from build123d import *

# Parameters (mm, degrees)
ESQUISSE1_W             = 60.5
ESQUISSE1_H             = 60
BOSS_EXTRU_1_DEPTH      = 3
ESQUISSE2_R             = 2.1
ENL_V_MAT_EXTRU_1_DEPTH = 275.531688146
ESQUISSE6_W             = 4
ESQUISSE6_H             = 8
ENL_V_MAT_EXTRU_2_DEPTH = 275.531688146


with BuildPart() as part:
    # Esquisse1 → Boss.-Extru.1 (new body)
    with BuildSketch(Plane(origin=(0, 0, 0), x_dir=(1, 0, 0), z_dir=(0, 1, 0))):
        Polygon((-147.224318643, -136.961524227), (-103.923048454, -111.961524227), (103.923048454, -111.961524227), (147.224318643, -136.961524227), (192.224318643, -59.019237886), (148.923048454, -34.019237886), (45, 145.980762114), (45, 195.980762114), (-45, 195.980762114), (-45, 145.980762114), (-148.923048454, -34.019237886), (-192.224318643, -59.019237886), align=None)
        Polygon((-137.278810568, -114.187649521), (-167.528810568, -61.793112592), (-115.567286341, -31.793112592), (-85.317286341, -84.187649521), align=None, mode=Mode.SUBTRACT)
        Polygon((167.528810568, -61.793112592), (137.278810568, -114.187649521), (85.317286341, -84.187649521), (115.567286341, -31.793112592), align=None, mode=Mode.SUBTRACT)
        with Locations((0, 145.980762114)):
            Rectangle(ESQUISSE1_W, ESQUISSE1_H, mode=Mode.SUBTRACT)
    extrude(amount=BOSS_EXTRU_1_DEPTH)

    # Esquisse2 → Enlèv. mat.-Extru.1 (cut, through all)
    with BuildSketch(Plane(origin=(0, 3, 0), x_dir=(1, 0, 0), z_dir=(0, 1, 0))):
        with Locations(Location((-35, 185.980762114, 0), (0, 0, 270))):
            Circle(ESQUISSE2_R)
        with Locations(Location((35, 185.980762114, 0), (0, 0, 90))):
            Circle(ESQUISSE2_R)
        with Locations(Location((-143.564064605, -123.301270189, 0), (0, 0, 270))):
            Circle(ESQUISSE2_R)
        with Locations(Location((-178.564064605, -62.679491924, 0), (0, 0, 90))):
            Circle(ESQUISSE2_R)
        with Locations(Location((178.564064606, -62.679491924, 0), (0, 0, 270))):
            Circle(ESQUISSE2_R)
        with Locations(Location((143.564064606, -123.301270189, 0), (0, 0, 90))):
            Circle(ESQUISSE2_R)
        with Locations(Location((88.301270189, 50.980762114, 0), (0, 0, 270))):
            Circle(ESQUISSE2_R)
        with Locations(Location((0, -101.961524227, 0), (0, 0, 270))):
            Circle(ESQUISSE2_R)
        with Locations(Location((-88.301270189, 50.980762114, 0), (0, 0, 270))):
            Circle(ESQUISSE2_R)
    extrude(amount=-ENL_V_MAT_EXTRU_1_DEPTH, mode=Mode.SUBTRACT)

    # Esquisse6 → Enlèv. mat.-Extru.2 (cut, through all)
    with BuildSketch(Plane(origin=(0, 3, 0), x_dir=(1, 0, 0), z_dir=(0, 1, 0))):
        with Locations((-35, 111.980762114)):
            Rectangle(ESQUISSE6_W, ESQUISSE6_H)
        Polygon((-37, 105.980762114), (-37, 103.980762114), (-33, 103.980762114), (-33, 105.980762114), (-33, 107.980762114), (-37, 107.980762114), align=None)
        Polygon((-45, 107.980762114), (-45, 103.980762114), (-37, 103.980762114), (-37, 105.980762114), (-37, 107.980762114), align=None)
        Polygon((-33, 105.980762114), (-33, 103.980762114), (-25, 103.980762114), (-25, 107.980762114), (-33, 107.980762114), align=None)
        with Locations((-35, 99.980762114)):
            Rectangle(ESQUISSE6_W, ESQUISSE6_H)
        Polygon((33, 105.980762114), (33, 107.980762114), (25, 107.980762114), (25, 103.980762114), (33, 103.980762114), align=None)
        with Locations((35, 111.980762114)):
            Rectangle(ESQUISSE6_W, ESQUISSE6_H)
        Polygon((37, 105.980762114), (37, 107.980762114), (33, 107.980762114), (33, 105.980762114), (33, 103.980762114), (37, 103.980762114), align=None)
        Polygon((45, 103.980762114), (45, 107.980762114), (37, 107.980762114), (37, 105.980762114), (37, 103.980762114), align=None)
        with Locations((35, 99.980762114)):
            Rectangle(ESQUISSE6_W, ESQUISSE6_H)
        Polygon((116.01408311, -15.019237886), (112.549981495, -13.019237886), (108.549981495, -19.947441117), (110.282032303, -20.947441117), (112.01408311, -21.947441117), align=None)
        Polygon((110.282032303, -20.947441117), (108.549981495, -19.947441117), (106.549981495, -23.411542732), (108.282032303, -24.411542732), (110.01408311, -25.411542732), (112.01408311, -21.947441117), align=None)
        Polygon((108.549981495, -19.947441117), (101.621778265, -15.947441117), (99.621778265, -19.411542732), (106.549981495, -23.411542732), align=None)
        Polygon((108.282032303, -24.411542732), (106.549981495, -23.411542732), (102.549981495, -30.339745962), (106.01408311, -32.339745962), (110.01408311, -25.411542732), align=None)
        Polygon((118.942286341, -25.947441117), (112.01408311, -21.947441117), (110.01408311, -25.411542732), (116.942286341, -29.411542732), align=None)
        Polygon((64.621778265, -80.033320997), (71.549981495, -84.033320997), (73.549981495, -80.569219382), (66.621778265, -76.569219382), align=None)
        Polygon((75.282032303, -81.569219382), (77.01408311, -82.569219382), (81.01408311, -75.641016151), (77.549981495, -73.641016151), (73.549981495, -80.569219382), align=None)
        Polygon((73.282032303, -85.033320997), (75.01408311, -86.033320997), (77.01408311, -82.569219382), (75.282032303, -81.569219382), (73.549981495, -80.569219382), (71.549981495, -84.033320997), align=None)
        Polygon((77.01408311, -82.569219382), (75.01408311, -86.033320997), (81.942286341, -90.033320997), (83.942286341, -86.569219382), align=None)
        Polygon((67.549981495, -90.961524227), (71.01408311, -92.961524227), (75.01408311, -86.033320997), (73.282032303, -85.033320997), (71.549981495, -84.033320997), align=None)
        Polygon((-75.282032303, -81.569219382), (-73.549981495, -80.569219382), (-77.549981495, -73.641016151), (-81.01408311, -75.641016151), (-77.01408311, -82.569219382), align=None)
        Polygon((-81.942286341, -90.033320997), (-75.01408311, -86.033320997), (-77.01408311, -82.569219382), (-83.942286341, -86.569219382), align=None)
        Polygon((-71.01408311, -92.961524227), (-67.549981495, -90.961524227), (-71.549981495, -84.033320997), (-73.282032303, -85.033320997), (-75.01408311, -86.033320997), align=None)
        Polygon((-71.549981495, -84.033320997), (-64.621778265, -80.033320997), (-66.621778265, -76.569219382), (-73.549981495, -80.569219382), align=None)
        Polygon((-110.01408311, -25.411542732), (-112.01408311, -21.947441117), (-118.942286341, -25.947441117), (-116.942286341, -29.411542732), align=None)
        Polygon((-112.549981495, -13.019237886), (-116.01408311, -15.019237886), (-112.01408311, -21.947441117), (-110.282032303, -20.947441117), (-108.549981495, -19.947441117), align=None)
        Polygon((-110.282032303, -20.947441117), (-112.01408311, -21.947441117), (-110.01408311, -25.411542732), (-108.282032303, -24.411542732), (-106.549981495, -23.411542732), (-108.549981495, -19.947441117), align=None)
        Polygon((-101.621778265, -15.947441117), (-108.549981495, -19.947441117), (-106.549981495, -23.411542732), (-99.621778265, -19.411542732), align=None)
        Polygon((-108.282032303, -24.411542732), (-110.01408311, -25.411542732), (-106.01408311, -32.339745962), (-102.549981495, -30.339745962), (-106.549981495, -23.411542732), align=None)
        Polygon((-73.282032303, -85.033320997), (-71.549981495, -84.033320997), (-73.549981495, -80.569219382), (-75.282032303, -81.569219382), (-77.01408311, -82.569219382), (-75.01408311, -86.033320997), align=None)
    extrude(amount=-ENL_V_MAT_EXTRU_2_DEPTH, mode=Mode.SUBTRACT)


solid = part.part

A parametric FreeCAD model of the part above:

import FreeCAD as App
import Part
import Sketcher
Q = App.Units.Quantity


def add_polygon(sketch, points):
    """Adds a closed chain of lines whose ends are joined by coincident constraints."""
    first, n = sketch.GeometryCount, len(points)
    for a, b in zip(points, points[1:] + points[:1]):
        sketch.addGeometry(Part.LineSegment(App.Vector(*a, 0), App.Vector(*b, 0)), False)
    for i in range(n):
        sketch.addConstraint(Sketcher.Constraint("Coincident", first + i, 2, first + (i + 1) % n, 1))

doc = App.newDocument("Part")
body = doc.addObject("PartDesign::Body", "Body")

sketch1 = body.newObject("Sketcher::SketchObject", "Sketch")
sketch1.AttachmentSupport = (doc.getObject("XZ_Plane"), [""])
sketch1.MapMode = "FlatFace"
add_polygon(sketch1, [(-147, 137), (-104, 112), (104, 112), (147, 137), (192, 59), (149, 34), (45, -146), (45, -196), (-45, -196), (-45, -146), (-149, 34), (-192, 59)])
add_polygon(sketch1, [(-85, 84), (-137, 114), (-168, 62), (-116, 32)])
add_polygon(sketch1, [(116, 32), (168, 62), (137, 114), (85, 84)])
add_polygon(sketch1, [(30, -116), (-30, -116), (-30, -176), (30, -176)])
sketch1.addConstraint(Sketcher.Constraint("Horizontal", 1))
sketch1.addConstraint(Sketcher.Constraint("Vertical", 6))
sketch1.addConstraint(Sketcher.Constraint("Horizontal", 7))
sketch1.addConstraint(Sketcher.Constraint("Vertical", 8))
sketch1.addConstraint(Sketcher.Constraint("Horizontal", 20))
sketch1.addConstraint(Sketcher.Constraint("Vertical", 21))
sketch1.addConstraint(Sketcher.Constraint("Horizontal", 22))
sketch1.addConstraint(Sketcher.Constraint("Vertical", 23))
sketch1.addConstraint(Sketcher.Constraint("Symmetric", 5, 2, 8, 2, -2))
sketch1.addConstraint(Sketcher.Constraint("Symmetric", 4, 2, 9, 2, -2))
sketch1.addConstraint(Sketcher.Constraint("Symmetric", 3, 2, 10, 2, -2))
sketch1.addConstraint(Sketcher.Constraint("Symmetric", 2, 2, 11, 2, -2))
sketch1.addConstraint(Sketcher.Constraint("Symmetric", 13, 2, 16, 2, -2))
sketch1.addConstraint(Sketcher.Constraint("Symmetric", 12, 2, 17, 2, -2))
sketch1.addConstraint(Sketcher.Constraint("Symmetric", 15, 2, 18, 2, -2))
sketch1.addConstraint(Sketcher.Constraint("Symmetric", 14, 2, 19, 2, -2))
sketch1.addConstraint(Sketcher.Constraint("Perpendicular", 2, 3))
sketch1.addConstraint(Sketcher.Constraint("Perpendicular", 3, 4))
sketch1.addConstraint(Sketcher.Constraint("Perpendicular", 0, 5))
sketch1.addConstraint(Sketcher.Constraint("Perpendicular", 4, 9))
sketch1.addConstraint(Sketcher.Constraint("Perpendicular", 11, 12))
sketch1.addConstraint(Sketcher.Constraint("Perpendicular", 12, 13))
sketch1.addConstraint(Sketcher.Constraint("Perpendicular", 13, 14))
sketch1.addConstraint(Sketcher.Constraint("Perpendicular", 14, 15))
sketch1.addConstraint(Sketcher.Constraint("Equal", 2, 4))
sketch1.addConstraint(Sketcher.Constraint("DistanceX", 7, 2, 7, 1, Q("90 mm")))
sketch1.addConstraint(Sketcher.Constraint("DistanceY", 6, 2, 6, 1, Q("50 mm")))
sketch1.addConstraint(Sketcher.Constraint("DistanceY", 21, 2, 21, 1, Q("60 mm")))
sketch1.addConstraint(Sketcher.Constraint("Angle", 0, Q("-30 deg")))
sketch1.addConstraint(Sketcher.Constraint("Distance", 0, Q("50 mm")))
sketch1.addConstraint(Sketcher.Constraint("Distance", 3, Q("90 mm")))
sketch1.addConstraint(Sketcher.Constraint("Distance", 12, Q("60 mm")))
sketch1.addConstraint(Sketcher.Constraint("DistanceX", 20, 2, 20, 1, Q("60.5 mm")))
sketch1.addConstraint(Sketcher.Constraint("DistanceY", 5, 2, 4, 2, Q("180 mm")))
sketch1.addConstraint(Sketcher.Constraint("DistanceY", 8, 2, 20, 2, Q("30 mm")))
sketch1.addConstraint(Sketcher.Constraint("Distance", 13, Q("60.5 mm")))
sketch1.addConstraint(Sketcher.Constraint("DistanceX", 20, 2, -1, 1, Q("30.25 mm")))
sketch1.addConstraint(Sketcher.Constraint("DistanceX", 12, 2, -1, 1, Q("137.278811 mm")))
sketch1.addConstraint(Sketcher.Constraint("DistanceY", -1, 1, 12, 2, Q("114.18765 mm")))
sketch1.addConstraint(Sketcher.Constraint("DistanceY", 10, 2, 12, 2, Q("55.168412 mm")))
pad1 = body.newObject("PartDesign::Pad", "Pad")
pad1.Profile = sketch1
pad1.Length = 3
pad1.Reversed = True

sketch2 = body.newObject("Sketcher::SketchObject", "Sketch001")
sketch2.AttachmentSupport = (doc.getObject("XZ_Plane"), [""])
sketch2.MapMode = "FlatFace"
sketch2.AttachmentOffset = App.Placement(App.Vector(0, 0, -3), App.Rotation())
sketch2.addGeometry(Part.Circle(App.Vector(-35, -186, 0), App.Vector(0, 0, 1), 2.1), False)
sketch2.addGeometry(Part.Circle(App.Vector(35, -186, 0), App.Vector(0, 0, 1), 2.1), False)
sketch2.addGeometry(Part.Circle(App.Vector(-143.6, 123.3, 0), App.Vector(0, 0, 1), 2.1), False)
sketch2.addGeometry(Part.Circle(App.Vector(-178.6, 62.7, 0), App.Vector(0, 0, 1), 2.1), False)
sketch2.addGeometry(Part.Circle(App.Vector(178.6, 62.7, 0), App.Vector(0, 0, 1), 2.1), False)
sketch2.addGeometry(Part.Circle(App.Vector(143.6, 123.3, 0), App.Vector(0, 0, 1), 2.1), False)
sketch2.addGeometry(Part.Circle(App.Vector(88.3, -51, 0), App.Vector(0, 0, 1), 2.1), False)
sketch2.addGeometry(Part.Circle(App.Vector(0, 102, 0), App.Vector(0, 0, 1), 2.1), False)
sketch2.addGeometry(Part.Circle(App.Vector(-88.3, -51, 0), App.Vector(0, 0, 1), 2.1), False)
sketch2.addConstraint(Sketcher.Constraint("Equal", 0, 1))
sketch2.addConstraint(Sketcher.Constraint("Equal", 1, 2))
sketch2.addConstraint(Sketcher.Constraint("Equal", 2, 3))
sketch2.addConstraint(Sketcher.Constraint("Equal", 3, 4))
sketch2.addConstraint(Sketcher.Constraint("Equal", 4, 5))
sketch2.addConstraint(Sketcher.Constraint("Equal", 5, 6))
sketch2.addConstraint(Sketcher.Constraint("Equal", 6, 7))
sketch2.addConstraint(Sketcher.Constraint("Equal", 7, 8))
sketch2.addConstraint(Sketcher.Constraint("Symmetric", 0, 3, 1, 3, -2))
sketch2.addConstraint(Sketcher.Constraint("Symmetric", 3, 3, 4, 3, -2))
sketch2.addConstraint(Sketcher.Constraint("Symmetric", 2, 3, 5, 3, -2))
sketch2.addConstraint(Sketcher.Constraint("Symmetric", 6, 3, 8, 3, -2))
sketch2.addConstraint(Sketcher.Constraint("PointOnObject", 7, 3, -2))
sketch2.addConstraint(Sketcher.Constraint("Diameter", 0, Q("4.2 mm")))
sketch2.addConstraint(Sketcher.Constraint("DistanceX", 0, 3, -1, 1, Q("35 mm")))
sketch2.addConstraint(Sketcher.Constraint("DistanceX", 3, 3, 2, 3, Q("35 mm")))
sketch2.addConstraint(Sketcher.Constraint("DistanceY", 1, 3, 6, 3, Q("135 mm")))
sketch2.addConstraint(Sketcher.Constraint("DistanceY", -1, 1, 2, 3, Q("123.30127 mm")))
sketch2.addConstraint(Sketcher.Constraint("DistanceY", -1, 1, 3, 3, Q("62.679492 mm")))
sketch2.addConstraint(Sketcher.Constraint("DistanceX", -1, 1, 6, 3, Q("88.30127 mm")))
sketch2.addConstraint(Sketcher.Constraint("DistanceX", 2, 3, 4, 3, Q("322.128129 mm")))
sketch2.addConstraint(Sketcher.Constraint("DistanceY", 0, 3, -1, 1, Q("185.980762 mm")))
sketch2.addConstraint(Sketcher.Constraint("DistanceY", -1, 1, 7, 3, Q("101.961524 mm")))
pocket1 = body.newObject("PartDesign::Pocket", "Pocket")
pocket1.Profile = sketch2
pocket1.Type = "ThroughAll"
pocket1.Reversed = True

sketch3 = body.newObject("Sketcher::SketchObject", "Sketch002")
sketch3.AttachmentSupport = (doc.getObject("XZ_Plane"), [""])
sketch3.MapMode = "FlatFace"
sketch3.AttachmentOffset = App.Placement(App.Vector(0, 0, -3), App.Rotation())
add_polygon(sketch3, [(-37, -116), (-37, -108), (-45, -108), (-45, -104), (-37, -104), (-37, -96), (-33, -96), (-33, -104), (-25, -104), (-25, -108), (-33, -108), (-33, -116)])
add_polygon(sketch3, [(33, -108), (25, -108), (25, -104), (33, -104), (33, -96), (37, -96), (37, -104), (45, -104), (45, -108), (37, -108), (37, -116), (33, -116)])
add_polygon(sketch3, [(116, 15), (112.5, 13), (108.5, 19.9), (101.6, 15.9), (99.6, 19.4), (106.5, 23.4), (102.5, 30.3), (106, 32.3), (110, 25.4), (116.9, 29.4), (118.9, 25.9), (112, 21.9)])
add_polygon(sketch3, [(64.6, 80), (71.5, 84), (67.5, 91), (71, 93), (75, 86), (81.9, 90), (83.9, 86.6), (77, 82.6), (81, 75.6), (77.5, 73.6), (73.5, 80.6), (66.6, 76.6)])
add_polygon(sketch3, [(-73.5, 80.6), (-77.5, 73.6), (-81, 75.6), (-77, 82.6), (-83.9, 86.6), (-81.9, 90), (-75, 86), (-71, 93), (-67.5, 91), (-71.5, 84), (-64.6, 80), (-66.6, 76.6)])
add_polygon(sketch3, [(-112, 21.9), (-118.9, 25.9), (-116.9, 29.4), (-110, 25.4), (-106, 32.3), (-102.5, 30.3), (-106.5, 23.4), (-99.6, 19.4), (-101.6, 15.9), (-108.5, 19.9), (-112.5, 13), (-116, 15)])
sketch3.addConstraint(Sketcher.Constraint("Vertical", 0))
sketch3.addConstraint(Sketcher.Constraint("Horizontal", 1))
sketch3.addConstraint(Sketcher.Constraint("Vertical", 2))
sketch3.addConstraint(Sketcher.Constraint("Horizontal", 3))
sketch3.addConstraint(Sketcher.Constraint("Vertical", 4))
sketch3.addConstraint(Sketcher.Constraint("Horizontal", 5))
sketch3.addConstraint(Sketcher.Constraint("Vertical", 6))
sketch3.addConstraint(Sketcher.Constraint("Horizontal", 7))
sketch3.addConstraint(Sketcher.Constraint("Vertical", 8))
sketch3.addConstraint(Sketcher.Constraint("Horizontal", 9))
sketch3.addConstraint(Sketcher.Constraint("Vertical", 10))
sketch3.addConstraint(Sketcher.Constraint("Horizontal", 11))
sketch3.addConstraint(Sketcher.Constraint("Horizontal", 12))
sketch3.addConstraint(Sketcher.Constraint("Vertical", 13))
sketch3.addConstraint(Sketcher.Constraint("Horizontal", 14))
sketch3.addConstraint(Sketcher.Constraint("Vertical", 15))
sketch3.addConstraint(Sketcher.Constraint("Horizontal", 16))
sketch3.addConstraint(Sketcher.Constraint("Vertical", 17))
sketch3.addConstraint(Sketcher.Constraint("Horizontal", 18))
sketch3.addConstraint(Sketcher.Constraint("Vertical", 19))
sketch3.addConstraint(Sketcher.Constraint("Horizontal", 20))
sketch3.addConstraint(Sketcher.Constraint("Vertical", 21))
sketch3.addConstraint(Sketcher.Constraint("Horizontal", 22))
sketch3.addConstraint(Sketcher.Constraint("Vertical", 23))
sketch3.addConstraint(Sketcher.Constraint("Symmetric", 8, 2, 12, 2, -2))
sketch3.addConstraint(Sketcher.Constraint("Symmetric", 6, 2, 14, 2, -2))
sketch3.addConstraint(Sketcher.Constraint("Symmetric", 4, 2, 16, 2, -2))
sketch3.addConstraint(Sketcher.Constraint("Symmetric", 2, 2, 18, 2, -2))
sketch3.addConstraint(Sketcher.Constraint("Symmetric", 0, 2, 20, 2, -2))
sketch3.addConstraint(Sketcher.Constraint("Symmetric", 10, 2, 22, 2, -2))
sketch3.addConstraint(Sketcher.Constraint("Symmetric", 44, 2, 48, 2, -2))
sketch3.addConstraint(Sketcher.Constraint("Symmetric", 43, 2, 49, 2, -2))
sketch3.addConstraint(Sketcher.Constraint("Symmetric", 42, 2, 50, 2, -2))
sketch3.addConstraint(Sketcher.Constraint("Symmetric", 41, 2, 51, 2, -2))
sketch3.addConstraint(Sketcher.Constraint("Symmetric", 40, 2, 52, 2, -2))
sketch3.addConstraint(Sketcher.Constraint("Symmetric", 39, 2, 53, 2, -2))
sketch3.addConstraint(Sketcher.Constraint("Symmetric", 38, 2, 54, 2, -2))
sketch3.addConstraint(Sketcher.Constraint("Symmetric", 37, 2, 55, 2, -2))
sketch3.addConstraint(Sketcher.Constraint("Symmetric", 36, 2, 56, 2, -2))
sketch3.addConstraint(Sketcher.Constraint("Symmetric", 47, 2, 57, 2, -2))
sketch3.addConstraint(Sketcher.Constraint("Symmetric", 46, 2, 58, 2, -2))
sketch3.addConstraint(Sketcher.Constraint("Symmetric", 45, 2, 59, 2, -2))
sketch3.addConstraint(Sketcher.Constraint("Symmetric", 33, 2, 60, 2, -2))
sketch3.addConstraint(Sketcher.Constraint("Symmetric", 32, 2, 61, 2, -2))
sketch3.addConstraint(Sketcher.Constraint("Symmetric", 31, 2, 62, 2, -2))
sketch3.addConstraint(Sketcher.Constraint("Symmetric", 30, 2, 63, 2, -2))
sketch3.addConstraint(Sketcher.Constraint("Symmetric", 29, 2, 64, 2, -2))
sketch3.addConstraint(Sketcher.Constraint("Symmetric", 28, 2, 65, 2, -2))
sketch3.addConstraint(Sketcher.Constraint("Symmetric", 27, 2, 66, 2, -2))
sketch3.addConstraint(Sketcher.Constraint("Symmetric", 26, 2, 67, 2, -2))
sketch3.addConstraint(Sketcher.Constraint("Symmetric", 25, 2, 68, 2, -2))
sketch3.addConstraint(Sketcher.Constraint("Symmetric", 24, 2, 69, 2, -2))
sketch3.addConstraint(Sketcher.Constraint("Symmetric", 35, 2, 70, 2, -2))
sketch3.addConstraint(Sketcher.Constraint("Symmetric", 34, 2, 71, 2, -2))
sketch3.addConstraint(Sketcher.Constraint("Perpendicular", 24, 25))
sketch3.addConstraint(Sketcher.Constraint("Perpendicular", 25, 26))
sketch3.addConstraint(Sketcher.Constraint("Perpendicular", 26, 27))
sketch3.addConstraint(Sketcher.Constraint("Perpendicular", 27, 28))
sketch3.addConstraint(Sketcher.Constraint("Perpendicular", 28, 29))
sketch3.addConstraint(Sketcher.Constraint("Perpendicular", 29, 30))
sketch3.addConstraint(Sketcher.Constraint("Perpendicular", 30, 31))
sketch3.addConstraint(Sketcher.Constraint("Perpendicular", 31, 32))
sketch3.addConstraint(Sketcher.Constraint("Perpendicular", 32, 33))
sketch3.addConstraint(Sketcher.Constraint("Perpendicular", 33, 34))
sketch3.addConstraint(Sketcher.Constraint("Perpendicular", 34, 35))
sketch3.addConstraint(Sketcher.Constraint("Perpendicular", 35, 36))
sketch3.addConstraint(Sketcher.Constraint("Perpendicular", 36, 37))
sketch3.addConstraint(Sketcher.Constraint("Perpendicular", 37, 38))
sketch3.addConstraint(Sketcher.Constraint("Perpendicular", 38, 39))
sketch3.addConstraint(Sketcher.Constraint("Perpendicular", 39, 40))
sketch3.addConstraint(Sketcher.Constraint("Perpendicular", 40, 41))
sketch3.addConstraint(Sketcher.Constraint("Perpendicular", 41, 42))
sketch3.addConstraint(Sketcher.Constraint("Perpendicular", 42, 43))
sketch3.addConstraint(Sketcher.Constraint("Perpendicular", 43, 44))
sketch3.addConstraint(Sketcher.Constraint("Perpendicular", 44, 45))
sketch3.addConstraint(Sketcher.Constraint("Perpendicular", 45, 46))
sketch3.addConstraint(Sketcher.Constraint("Perpendicular", 46, 47))
sketch3.addConstraint(Sketcher.Constraint("Horizontal", 3, 2, 6, 2))
sketch3.addConstraint(Sketcher.Constraint("Horizontal", 1, 2, 8, 2))
sketch3.addConstraint(Sketcher.Constraint("Vertical", 0, 2, 3, 2))
sketch3.addConstraint(Sketcher.Constraint("Vertical", 6, 2, 9, 2))
sketch3.addConstraint(Sketcher.Constraint("Equal", 3, 7))
sketch3.addConstraint(Sketcher.Constraint("Equal", 20, 0))
sketch3.addConstraint(Sketcher.Constraint("Equal", 22, 2))
sketch3.addConstraint(Sketcher.Constraint("Equal", 0, 4))
sketch3.addConstraint(Sketcher.Constraint("Equal", 25, 26))
sketch3.addConstraint(Sketcher.Constraint("Equal", 24, 27))
sketch3.addConstraint(Sketcher.Constraint("Equal", 26, 28))
sketch3.addConstraint(Sketcher.Constraint("Equal", 28, 29))
sketch3.addConstraint(Sketcher.Constraint("Equal", 27, 30))
sketch3.addConstraint(Sketcher.Constraint("Equal", 29, 31))
sketch3.addConstraint(Sketcher.Constraint("Equal", 31, 32))
sketch3.addConstraint(Sketcher.Constraint("Equal", 30, 33))
sketch3.addConstraint(Sketcher.Constraint("Equal", 35, 36))
sketch3.addConstraint(Sketcher.Constraint("Equal", 36, 37))
sketch3.addConstraint(Sketcher.Constraint("Equal", 33, 38))
sketch3.addConstraint(Sketcher.Constraint("Equal", 37, 39))
sketch3.addConstraint(Sketcher.Constraint("Equal", 39, 40))
sketch3.addConstraint(Sketcher.Constraint("Equal", 38, 41))
sketch3.addConstraint(Sketcher.Constraint("Equal", 40, 42))
sketch3.addConstraint(Sketcher.Constraint("Equal", 42, 43))
sketch3.addConstraint(Sketcher.Constraint("Equal", 41, 44))
sketch3.addConstraint(Sketcher.Constraint("Equal", 43, 45))
sketch3.addConstraint(Sketcher.Constraint("DistanceX", 1, 2, 1, 1, Q("8 mm")))
sketch3.addConstraint(Sketcher.Constraint("DistanceX", 5, 1, 5, 2, Q("4 mm")))
sketch3.addConstraint(Sketcher.Constraint("Angle", 24, Q("-150 deg")))
sketch3.addConstraint(Sketcher.Constraint("Distance", 24, Q("4 mm")))
sketch3.addConstraint(Sketcher.Constraint("Distance", 25, Q("8 mm")))
sketch3.addConstraint(Sketcher.Constraint("DistanceX", 0, 2, -1, 1, Q("37 mm")))
sketch3.addConstraint(Sketcher.Constraint("DistanceX", -1, 1, 24, 2, Q("112.549981 mm")))
sketch3.addConstraint(Sketcher.Constraint("DistanceY", -1, 1, 25, 2, Q("19.947441 mm")))
sketch3.addConstraint(Sketcher.Constraint("DistanceX", -1, 1, 36, 2, Q("71.549981 mm")))
sketch3.addConstraint(Sketcher.Constraint("DistanceY", -1, 1, 36, 2, Q("84.033321 mm")))
sketch3.addConstraint(Sketcher.Constraint("DistanceY", 0, 2, -1, 1, Q("107.980762 mm")))
pocket2 = body.newObject("PartDesign::Pocket", "Pocket001")
pocket2.Profile = sketch3
pocket2.Type = "ThroughAll"
pocket2.Reversed = True

doc.recompute()
